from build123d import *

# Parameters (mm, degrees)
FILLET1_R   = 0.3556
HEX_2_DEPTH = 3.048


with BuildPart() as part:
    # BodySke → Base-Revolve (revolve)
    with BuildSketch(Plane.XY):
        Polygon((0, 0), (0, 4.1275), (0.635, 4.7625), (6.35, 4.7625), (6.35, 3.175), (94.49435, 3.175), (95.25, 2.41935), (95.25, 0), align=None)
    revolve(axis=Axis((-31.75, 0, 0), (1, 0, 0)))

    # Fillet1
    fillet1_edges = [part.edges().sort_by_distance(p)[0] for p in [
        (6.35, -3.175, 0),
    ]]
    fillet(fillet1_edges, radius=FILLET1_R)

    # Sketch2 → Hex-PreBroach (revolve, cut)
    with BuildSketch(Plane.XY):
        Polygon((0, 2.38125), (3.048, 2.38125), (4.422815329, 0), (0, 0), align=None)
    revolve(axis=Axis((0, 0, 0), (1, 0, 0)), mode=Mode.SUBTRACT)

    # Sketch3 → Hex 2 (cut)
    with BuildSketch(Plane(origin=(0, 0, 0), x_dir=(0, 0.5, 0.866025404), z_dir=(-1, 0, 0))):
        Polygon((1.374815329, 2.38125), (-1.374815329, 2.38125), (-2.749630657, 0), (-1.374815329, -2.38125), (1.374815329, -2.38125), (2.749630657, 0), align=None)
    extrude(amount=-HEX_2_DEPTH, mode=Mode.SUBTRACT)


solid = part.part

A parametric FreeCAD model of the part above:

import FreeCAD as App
import Part
import Sketcher

V = App.Vector
Q = App.Units.Quantity


def edges_at(feature, points):
    """Names of the edges that pass closest to the given points."""
    edges = feature.Shape.Edges
    near = lambda p: min(range(len(edges)), key=lambda i: edges[i].distToShape(Part.Vertex(*p))[0])
    return sorted({f"Edge{near(p) + 1}" for p in points})

doc = App.newDocument("Part")
body = doc.addObject("PartDesign::Body", "Body")

sketch1 = body.newObject("Sketcher::SketchObject", "Sketch")
sketch1.AttachmentSupport = (doc.getObject("XY_Plane"), [""])
sketch1.MapMode = "FlatFace"
sketch1.addGeometry([
    Part.LineSegment(V(0, 4.1275, 0), V(0, 0, 0)),
    Part.LineSegment(V(0, 0, 0), V(95.25, 0, 0)),
    Part.LineSegment(V(95.25, 0, 0), V(95.25, 2.41935, 0)),
    Part.LineSegment(V(95.25, 2.41935, 0), V(94.49435, 3.175, 0)),
    Part.LineSegment(V(94.49435, 3.175, 0), V(6.35, 3.175, 0)),
    Part.LineSegment(V(6.35, 3.175, 0), V(6.35, 4.7625, 0)),
    Part.LineSegment(V(6.35, 4.7625, 0), V(0.635, 4.7625, 0)),
    Part.LineSegment(V(0.635, 4.7625, 0), V(0, 4.1275, 0)),
], False)
sketch1.addConstraint([
    Sketcher.Constraint("Coincident", 0, 2, 1, 1),
    Sketcher.Constraint("Coincident", 1, 2, 2, 1),
    Sketcher.Constraint("Coincident", 2, 2, 3, 1),
    Sketcher.Constraint("Coincident", 3, 2, 4, 1),
    Sketcher.Constraint("Coincident", 4, 2, 5, 1),
    Sketcher.Constraint("Coincident", 5, 2, 6, 1),
    Sketcher.Constraint("Coincident", 6, 2, 7, 1),
    Sketcher.Constraint("Coincident", 7, 2, 0, 1),
    Sketcher.Constraint("Vertical", 0),
    Sketcher.Constraint("Horizontal", 1),
    Sketcher.Constraint("Vertical", 2),
    Sketcher.Constraint("Horizontal", 4),
    Sketcher.Constraint("Vertical", 5),
    Sketcher.Constraint("Horizontal", 6),
    Sketcher.Constraint("Coincident", 0, 2, -1, 1),
    Sketcher.Constraint("Perpendicular", 3, 7),
    Sketcher.Constraint("Angle", 3, Q("135 deg")),
    Sketcher.Constraint("DistanceX", 1, 1, 1, 2, Q("3.75 in")),
    Sketcher.Constraint("DistanceX", 4, 2, 2, 2, Q("3.5 in")),
    Sketcher.Constraint("DistanceX", 6, 2, 6, 1, Q("0.225 in")),
    Sketcher.Constraint("DistanceY", 5, 1, 5, 2, Q("0.0625 in")),
    Sketcher.Constraint("DistanceY", 0, 2, 0, 1, Q("0.1625 in")),
    Sketcher.Constraint("DistanceX", 4, 2, 4, 1, Q("88.14435 mm")),
])
revolution = body.newObject("PartDesign::Revolution", "Revolution")
revolution.Profile = sketch1
revolution.ReferenceAxis = (sketch1, ["H_Axis"])
revolution.Angle = 360
doc.recompute()

fillet = body.newObject("PartDesign::Fillet", "Fillet")
fillet.Base = (revolution, edges_at(revolution, [(6.35, -3.175, 0)]))
fillet.Radius = Q("0.014 in")

sketch2 = body.newObject("Sketcher::SketchObject", "Sketch001")
sketch2.AttachmentSupport = (doc.getObject("XY_Plane"), [""])
sketch2.MapMode = "FlatFace"
sketch2.addGeometry([
    Part.LineSegment(V(3.048, 2.38125, 0), V(0, 2.38125, 0)),
    Part.LineSegment(V(0, 2.38125, 0), V(0, 0, 0)),
    Part.LineSegment(V(0, 0, 0), V(4.422815, 0, 0)),
    Part.LineSegment(V(4.422815, 0, 0), V(3.048, 2.38125, 0)),
], False)
sketch2.addConstraint([
    Sketcher.Constraint("Coincident", 0, 2, 1, 1),
    Sketcher.Constraint("Coincident", 1, 2, 2, 1),
    Sketcher.Constraint("Coincident", 2, 2, 3, 1),
    Sketcher.Constraint("Coincident", 3, 2, 0, 1),
    Sketcher.Constraint("Horizontal", 0),
    Sketcher.Constraint("Vertical", 1),
    Sketcher.Constraint("Horizontal", 2),
    Sketcher.Constraint("Coincident", 1, 2, -1, 1),
    Sketcher.Constraint("Angle", 3, Q("120 deg")),
    Sketcher.Constraint("DistanceX", 0, 2, 0, 1, Q("0.12 in")),
    Sketcher.Constraint("DistanceY", 1, 2, 1, 1, Q("0.09375 in")),
])
groove = body.newObject("PartDesign::Groove", "Groove")
groove.Profile = sketch2
groove.ReferenceAxis = (sketch2, ["H_Axis"])
groove.Angle = 360

sketch3 = body.newObject("Sketcher::SketchObject", "Sketch002")
sketch3.AttachmentSupport = (doc.getObject("YZ_Plane"), [""])
sketch3.MapMode = "FlatFace"
sketch3.addGeometry([
    Part.LineSegment(V(2.749631, 0, 0), V(1.374815, -2.38125, 0)),
    Part.LineSegment(V(1.374815, -2.38125, 0), V(-1.374815, -2.38125, 0)),
    Part.LineSegment(V(-1.374815, -2.38125, 0), V(-2.749631, 0, 0)),
    Part.LineSegment(V(-2.749631, 0, 0), V(-1.374815, 2.38125, 0)),
    Part.LineSegment(V(-1.374815, 2.38125, 0), V(1.374815, 2.38125, 0)),
    Part.LineSegment(V(1.374815, 2.38125, 0), V(2.749631, 0, 0)),
], False)
sketch3.addConstraint([
    Sketcher.Constraint("Coincident", 0, 2, 1, 1),
    Sketcher.Constraint("Coincident", 1, 2, 2, 1),
    Sketcher.Constraint("Coincident", 2, 2, 3, 1),
    Sketcher.Constraint("Coincident", 3, 2, 4, 1),
    Sketcher.Constraint("Coincident", 4, 2, 5, 1),
    Sketcher.Constraint("Coincident", 5, 2, 0, 1),
    Sketcher.Constraint("Horizontal", 1),
    Sketcher.Constraint("Horizontal", 4),
    Sketcher.Constraint("Symmetric", 0, 2, 3, 2, -1, 1),
    Sketcher.Constraint("Symmetric", 2, 2, 5, 2, -1, 1),
    Sketcher.Constraint("PointOnObject", 2, 2, -1),
    Sketcher.Constraint("Parallel", 2, 5),
    Sketcher.Constraint("Vertical", 1, 2, 3, 2),
    Sketcher.Constraint("Angle", 0, Q("-120 deg")),
    Sketcher.Constraint("DistanceY", 0, 2, -1, 1, Q("0.09375 in")),
    Sketcher.Constraint("DistanceX", 1, 2, 1, 1, Q("2.749631 mm")),
])
pocket1 = body.newObject("PartDesign::Pocket", "Pocket")
pocket1.Profile = sketch3
pocket1.Length = Q("0.12 in")
pocket1.Reversed = True

doc.recompute()
